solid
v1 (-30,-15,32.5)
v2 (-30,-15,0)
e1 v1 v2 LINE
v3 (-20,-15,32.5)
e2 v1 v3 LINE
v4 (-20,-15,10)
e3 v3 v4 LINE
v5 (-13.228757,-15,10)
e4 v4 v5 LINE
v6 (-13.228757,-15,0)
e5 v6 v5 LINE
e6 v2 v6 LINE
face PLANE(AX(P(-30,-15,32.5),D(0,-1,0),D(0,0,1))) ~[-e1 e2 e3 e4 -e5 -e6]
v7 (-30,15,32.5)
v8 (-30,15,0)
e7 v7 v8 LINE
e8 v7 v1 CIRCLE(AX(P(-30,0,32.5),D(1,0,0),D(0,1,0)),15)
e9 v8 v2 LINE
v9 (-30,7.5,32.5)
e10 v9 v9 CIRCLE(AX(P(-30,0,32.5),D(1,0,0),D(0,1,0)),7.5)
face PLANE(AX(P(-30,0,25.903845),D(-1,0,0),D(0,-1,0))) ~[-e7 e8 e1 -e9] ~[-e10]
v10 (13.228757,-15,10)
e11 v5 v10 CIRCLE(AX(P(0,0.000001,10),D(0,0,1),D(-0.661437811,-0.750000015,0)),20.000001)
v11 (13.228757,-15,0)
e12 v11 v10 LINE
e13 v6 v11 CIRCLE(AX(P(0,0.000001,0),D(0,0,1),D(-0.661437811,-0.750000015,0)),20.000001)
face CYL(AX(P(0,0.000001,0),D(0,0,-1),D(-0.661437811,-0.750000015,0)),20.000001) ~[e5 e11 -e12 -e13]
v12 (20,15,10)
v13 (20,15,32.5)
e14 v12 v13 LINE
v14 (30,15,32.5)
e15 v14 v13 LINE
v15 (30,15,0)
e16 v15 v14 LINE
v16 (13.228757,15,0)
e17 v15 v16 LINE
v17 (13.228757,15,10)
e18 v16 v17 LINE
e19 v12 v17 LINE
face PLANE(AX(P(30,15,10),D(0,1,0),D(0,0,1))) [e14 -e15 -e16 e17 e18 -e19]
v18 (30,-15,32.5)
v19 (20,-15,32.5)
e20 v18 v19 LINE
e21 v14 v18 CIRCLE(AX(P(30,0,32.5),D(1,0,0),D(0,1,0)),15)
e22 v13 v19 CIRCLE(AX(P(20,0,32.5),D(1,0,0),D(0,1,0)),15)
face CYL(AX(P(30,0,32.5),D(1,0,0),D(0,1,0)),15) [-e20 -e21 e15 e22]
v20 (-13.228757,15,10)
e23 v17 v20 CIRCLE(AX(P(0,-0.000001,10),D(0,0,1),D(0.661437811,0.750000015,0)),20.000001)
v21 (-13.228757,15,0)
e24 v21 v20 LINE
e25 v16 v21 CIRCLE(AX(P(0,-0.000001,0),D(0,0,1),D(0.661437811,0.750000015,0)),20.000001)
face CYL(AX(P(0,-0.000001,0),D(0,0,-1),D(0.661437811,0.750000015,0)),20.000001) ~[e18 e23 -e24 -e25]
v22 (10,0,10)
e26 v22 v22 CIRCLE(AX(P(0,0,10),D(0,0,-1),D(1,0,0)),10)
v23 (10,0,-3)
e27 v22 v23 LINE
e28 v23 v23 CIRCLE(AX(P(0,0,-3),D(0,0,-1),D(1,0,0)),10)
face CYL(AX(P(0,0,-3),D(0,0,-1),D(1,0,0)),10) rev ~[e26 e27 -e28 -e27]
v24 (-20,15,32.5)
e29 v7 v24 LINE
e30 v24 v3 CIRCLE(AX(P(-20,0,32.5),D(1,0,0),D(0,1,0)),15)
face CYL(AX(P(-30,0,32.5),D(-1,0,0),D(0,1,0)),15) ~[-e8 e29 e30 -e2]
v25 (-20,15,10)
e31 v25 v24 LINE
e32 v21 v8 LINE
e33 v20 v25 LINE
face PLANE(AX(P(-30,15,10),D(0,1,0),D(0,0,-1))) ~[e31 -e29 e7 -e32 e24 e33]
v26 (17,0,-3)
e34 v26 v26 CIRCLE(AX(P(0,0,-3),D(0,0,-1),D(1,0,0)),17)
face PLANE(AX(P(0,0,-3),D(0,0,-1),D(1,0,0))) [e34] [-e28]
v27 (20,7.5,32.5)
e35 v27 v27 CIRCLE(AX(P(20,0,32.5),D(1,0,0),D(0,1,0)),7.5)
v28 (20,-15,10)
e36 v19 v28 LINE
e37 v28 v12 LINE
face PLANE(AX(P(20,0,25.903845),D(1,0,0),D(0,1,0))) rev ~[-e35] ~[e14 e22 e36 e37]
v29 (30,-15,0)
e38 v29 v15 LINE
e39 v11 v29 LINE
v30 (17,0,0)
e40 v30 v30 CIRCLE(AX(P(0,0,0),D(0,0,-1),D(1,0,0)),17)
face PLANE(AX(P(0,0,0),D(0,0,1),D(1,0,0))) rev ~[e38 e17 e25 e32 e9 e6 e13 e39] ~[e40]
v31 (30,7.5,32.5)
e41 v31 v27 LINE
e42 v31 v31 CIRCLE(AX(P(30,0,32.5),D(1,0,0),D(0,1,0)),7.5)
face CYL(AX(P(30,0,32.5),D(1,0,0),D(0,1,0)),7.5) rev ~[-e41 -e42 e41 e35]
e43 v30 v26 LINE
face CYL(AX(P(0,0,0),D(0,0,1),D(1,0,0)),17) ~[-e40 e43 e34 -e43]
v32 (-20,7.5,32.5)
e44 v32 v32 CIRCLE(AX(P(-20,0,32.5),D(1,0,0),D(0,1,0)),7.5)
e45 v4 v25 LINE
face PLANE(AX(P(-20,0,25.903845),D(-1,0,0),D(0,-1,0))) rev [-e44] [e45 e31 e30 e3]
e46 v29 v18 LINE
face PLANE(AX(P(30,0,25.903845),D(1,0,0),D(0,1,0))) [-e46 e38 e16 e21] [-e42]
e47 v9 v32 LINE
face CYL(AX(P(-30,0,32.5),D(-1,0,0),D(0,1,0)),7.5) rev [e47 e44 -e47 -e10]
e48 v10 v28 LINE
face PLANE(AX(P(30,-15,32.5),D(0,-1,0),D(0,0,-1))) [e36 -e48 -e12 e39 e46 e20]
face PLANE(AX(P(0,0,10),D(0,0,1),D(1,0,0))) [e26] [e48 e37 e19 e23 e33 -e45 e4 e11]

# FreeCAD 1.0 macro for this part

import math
import FreeCAD as App
import Part
import Sketcher
from FreeCAD import Vector

doc = App.newDocument("Part")
body = doc.addObject("PartDesign::Body", "Body")

# Sketch on XY plane
sketch1 = body.newObject("Sketcher::SketchObject", "Sketch")
sketch1.AttachmentSupport = (doc.getObject("XY_Plane"), [""])
sketch1.MapMode = "FlatFace"
sketch1.addGeometry([
    Part.LineSegment(Vector(-30, -15, 0), Vector(-13.228757, -15, 0)),  # 0
    Part.ArcOfCircle(Part.Circle(Vector(0, 0.000001, 0), Vector(0, 0, 1), 20.000001), math.radians(-131.409621), math.radians(-48.590379)),  # 1
    Part.LineSegment(Vector(13.228757, -15, 0), Vector(30, -15, 0)),  # 2
    Part.LineSegment(Vector(30, -15, 0), Vector(30, 15, 0)),  # 3
    Part.LineSegment(Vector(30, 15, 0), Vector(13.228757, 15, 0)),  # 4
    Part.ArcOfCircle(Part.Circle(Vector(0, -0.000001, 0), Vector(0, 0, 1), 20.000001), math.radians(48.590379), math.radians(131.409621)),  # 5
    Part.LineSegment(Vector(-13.228757, 15, 0), Vector(-30, 15, 0)),  # 6
    Part.LineSegment(Vector(-30, 15, 0), Vector(-30, -15, 0)),  # 7
    Part.Circle(Vector(0, 0, 0), Vector(0, 0, 1), 10),  # 8
], False)
sketch1.addConstraint([
    Sketcher.Constraint("Coincident", 0, 2, 1, 1),
    Sketcher.Constraint("Coincident", 1, 2, 2, 1),
    Sketcher.Constraint("Coincident", 2, 2, 3, 1),
    Sketcher.Constraint("Coincident", 3, 2, 4, 1),
    Sketcher.Constraint("Coincident", 4, 2, 5, 1),
    Sketcher.Constraint("Coincident", 5, 2, 6, 1),
    Sketcher.Constraint("Coincident", 6, 2, 7, 1),
    Sketcher.Constraint("Coincident", 7, 2, 0, 1),
    Sketcher.Constraint("Horizontal", 0),
    Sketcher.Constraint("Horizontal", 2),
    Sketcher.Constraint("Vertical", 3),
    Sketcher.Constraint("Horizontal", 4),
    Sketcher.Constraint("Horizontal", 6),
    Sketcher.Constraint("Vertical", 7),
    Sketcher.Constraint("Coincident", 1, 3, -1, 1),
    Sketcher.Constraint("Coincident", 5, 3, -1, 1),
    Sketcher.Constraint("Coincident", 8, 3, -1, 1),
    Sketcher.Constraint("Equal", 1, 5),
    Sketcher.Constraint("Symmetric", 2, 2, 6, 2, -1, 1),
    Sketcher.Constraint("Horizontal", 0, 2, 1, 2),
    Sketcher.Constraint("Horizontal", 4, 2, 5, 2),
    Sketcher.Constraint("Diameter", 8, 20.0),
    Sketcher.Constraint("Radius", 1, 20.000001),
    Sketcher.Constraint("DistanceY", 3, 1, 3, 2, 30.0),
    Sketcher.Constraint("DistanceX", -1, 1, 2, 2, 30.0),
])
pad1 = body.newObject("PartDesign::Pad", "Pad")
pad1.Profile = sketch1
pad1.Length = 10

# Sketch on YZ plane
sketch2 = body.newObject("Sketcher::SketchObject", "Sketch001")
sketch2.AttachmentSupport = (doc.getObject("YZ_Plane"), [""])
sketch2.MapMode = "FlatFace"
sketch2.AttachmentOffset = App.Placement(Vector(0, 0, 30), App.Rotation())
sketch2.addGeometry([
    Part.LineSegment(Vector(-15, 32.5, 0), Vector(-15, 10, 0)),  # 0
    Part.LineSegment(Vector(-15, 10, 0), Vector(15, 10, 0)),  # 1
    Part.LineSegment(Vector(15, 10, 0), Vector(15, 32.5, 0)),  # 2
    Part.ArcOfCircle(Part.Circle(Vector(0, 32.5, 0), Vector(0, 0, 1), 15), math.radians(0), math.radians(180)),  # 3
    Part.Circle(Vector(0, 32.5, 0), Vector(0, 0, 1), 7.5),  # 4
], False)
sketch2.addConstraint([
    Sketcher.Constraint("Coincident", 0, 2, 1, 1),
    Sketcher.Constraint("Coincident", 1, 2, 2, 1),
    Sketcher.Constraint("Tangent", 2, 2, 3, 1),
    Sketcher.Constraint("Tangent", 3, 2, 0, 1),
    Sketcher.Constraint("Vertical", 0),
    Sketcher.Constraint("Horizontal", 1),
    Sketcher.Constraint("Vertical", 2),
    Sketcher.Constraint("Coincident", 4, 3, 3, 3),
    Sketcher.Constraint("PointOnObject", 3, 3, -2),
    Sketcher.Constraint("Diameter", 4, 15.0),
    Sketcher.Constraint("Radius", 3, 15.0),
    Sketcher.Constraint("DistanceY", 0, 2, 0, 1, 22.5),
    Sketcher.Constraint("DistanceY", -1, 1, 0, 2, 10.0),
])
pad2 = body.newObject("PartDesign::Pad", "Pad001")
pad2.Profile = sketch2
pad2.Length = 10
pad2.Reversed = True
body2 = doc.addObject("PartDesign::Body", "Body001")
doc.recompute()

body2.BaseFeature = body
doc.recompute()

mirroring = doc.addObject("Part::Mirroring", "Mirroring")
mirroring.Source = body
mirroring.Base = Vector(0, 0, 0)
mirroring.Normal = Vector(1, 0, 0)
body3 = doc.addObject("PartDesign::Body", "Body002")
body3.BaseFeature = mirroring
boolean = body2.newObject("PartDesign::Boolean", "Boolean")
boolean.Type = "Fuse"
boolean.addObjects([body3])
doc.recompute()

# Sketch on XY plane
sketch3 = body2.newObject("Sketcher::SketchObject", "Sketch002")
sketch3.AttachmentSupport = (doc.getObject("XY_Plane001"), [""])
sketch3.MapMode = "FlatFace"
sketch3.addGeometry(Part.Circle(Vector(0, 0, 0), Vector(0, 0, 1), 17), False)
sketch3.addConstraint([
    Sketcher.Constraint("Coincident", 0, 3, -1, 1),
    Sketcher.Constraint("Diameter", 0, 34.0),
])
pad3 = body2.newObject("PartDesign::Pad", "Pad002")
pad3.Profile = sketch3
pad3.Length = 3
pad3.Reversed = True

# Sketch on XY plane
sketch4 = body2.newObject("Sketcher::SketchObject", "Sketch003")
sketch4.AttachmentSupport = (doc.getObject("XY_Plane001"), [""])
sketch4.MapMode = "FlatFace"
sketch4.AttachmentOffset = App.Placement(Vector(0, 0, -3), App.Rotation())
sketch4.addGeometry(Part.Circle(Vector(0, 0, 0), Vector(0, 0, 1), 10), False)
sketch4.addConstraint([
    Sketcher.Constraint("Coincident", 0, 3, -1, 1),
    Sketcher.Constraint("Diameter", 0, 20.0),
])
pocket1 = body2.newObject("PartDesign::Pocket", "Pocket")
pocket1.Profile = sketch4
pocket1.Type = "ThroughAll"
pocket1.Reversed = True
mirroring.Visibility = False

doc.recompute()
